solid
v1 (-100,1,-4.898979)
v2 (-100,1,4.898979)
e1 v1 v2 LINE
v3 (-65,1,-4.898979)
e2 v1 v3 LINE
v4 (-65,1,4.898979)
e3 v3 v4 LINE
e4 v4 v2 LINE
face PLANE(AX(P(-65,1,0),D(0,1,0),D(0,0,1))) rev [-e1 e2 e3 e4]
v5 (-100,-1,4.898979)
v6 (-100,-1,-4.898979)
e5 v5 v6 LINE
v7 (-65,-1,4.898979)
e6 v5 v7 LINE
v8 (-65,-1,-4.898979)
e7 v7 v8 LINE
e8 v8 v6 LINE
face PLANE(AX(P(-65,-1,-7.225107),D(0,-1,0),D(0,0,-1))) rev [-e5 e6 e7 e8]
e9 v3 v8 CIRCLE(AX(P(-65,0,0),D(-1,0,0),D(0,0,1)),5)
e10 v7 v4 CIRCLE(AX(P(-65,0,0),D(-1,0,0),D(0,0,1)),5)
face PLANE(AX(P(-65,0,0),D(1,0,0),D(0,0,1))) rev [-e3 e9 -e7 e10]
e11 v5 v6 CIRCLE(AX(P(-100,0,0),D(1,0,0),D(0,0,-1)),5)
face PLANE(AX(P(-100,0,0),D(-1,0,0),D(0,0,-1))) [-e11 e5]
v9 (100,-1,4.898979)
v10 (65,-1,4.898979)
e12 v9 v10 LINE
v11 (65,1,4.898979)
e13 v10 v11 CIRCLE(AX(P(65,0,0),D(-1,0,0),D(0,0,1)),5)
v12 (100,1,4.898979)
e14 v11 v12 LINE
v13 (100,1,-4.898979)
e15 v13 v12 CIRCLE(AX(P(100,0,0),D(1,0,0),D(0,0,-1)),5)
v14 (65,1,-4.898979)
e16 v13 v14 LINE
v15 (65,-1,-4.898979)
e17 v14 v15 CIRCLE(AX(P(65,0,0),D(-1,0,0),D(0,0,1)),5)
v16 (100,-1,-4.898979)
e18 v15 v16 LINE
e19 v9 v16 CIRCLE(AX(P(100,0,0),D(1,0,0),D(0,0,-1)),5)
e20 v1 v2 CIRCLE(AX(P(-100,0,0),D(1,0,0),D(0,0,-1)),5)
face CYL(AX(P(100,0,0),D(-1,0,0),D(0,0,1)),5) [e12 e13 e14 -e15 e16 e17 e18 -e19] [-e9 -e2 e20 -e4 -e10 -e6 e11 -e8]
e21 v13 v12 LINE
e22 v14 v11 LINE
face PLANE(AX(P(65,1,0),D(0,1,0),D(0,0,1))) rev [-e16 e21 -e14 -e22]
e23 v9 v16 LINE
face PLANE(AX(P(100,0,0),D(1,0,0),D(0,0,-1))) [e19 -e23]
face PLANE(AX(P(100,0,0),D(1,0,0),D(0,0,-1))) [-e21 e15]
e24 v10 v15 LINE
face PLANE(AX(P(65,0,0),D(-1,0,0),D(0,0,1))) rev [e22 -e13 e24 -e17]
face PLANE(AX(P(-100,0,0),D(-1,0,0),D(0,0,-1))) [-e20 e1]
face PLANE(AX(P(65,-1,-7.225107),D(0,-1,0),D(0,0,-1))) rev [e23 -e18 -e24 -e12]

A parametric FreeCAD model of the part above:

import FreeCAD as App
import Part
import Sketcher

doc = App.newDocument("Part")
body = doc.addObject("PartDesign::Body", "Body")

# Sketch on YZ plane
sketch1 = doc.addObject("Sketcher::SketchObject", "Sketch")
body.addObject(sketch1)
sketch1.AttachmentSupport = (doc.YZ_Plane, [""])
sketch1.MapMode = "FlatFace"
sketch1.addGeometry(Part.Circle(App.Vector(0, 0, 0), App.Vector(0, 0, 1), 5), False)
sketch1.addConstraint([
    Sketcher.Constraint("Coincident", 0, 3, -1, 1),
    Sketcher.Constraint("Diameter", 0, 10.0),
])
pad1 = doc.addObject("PartDesign::Pad", "Pad")
body.addObject(pad1)
pad1.Profile = sketch1
pad1.Length = 100

# Sketch on YZ plane
sketch2 = doc.addObject("Sketcher::SketchObject", "Sketch001")
body.addObject(sketch2)
sketch2.AttachmentSupport = (doc.YZ_Plane, [""])
sketch2.MapMode = "FlatFace"
sketch2.AttachmentOffset = App.Placement(App.Vector(0, 0, 100), App.Rotation())
sketch2.addGeometry([
    Part.LineSegment(App.Vector(1, -7.2, 0), App.Vector(1, 6.5, 0)),
    Part.LineSegment(App.Vector(1, 6.5, 0), App.Vector(-1, 6.5, 0)),
    Part.LineSegment(App.Vector(-1, 6.5, 0), App.Vector(-1, -7.2, 0)),
    Part.LineSegment(App.Vector(-1, -7.2, 0), App.Vector(1, -7.2, 0)),
], False)
sketch2.addConstraint([
    Sketcher.Constraint("Coincident", 0, 2, 1, 1),
    Sketcher.Constraint("Coincident", 1, 2, 2, 1),
    Sketcher.Constraint("Coincident", 2, 2, 3, 1),
    Sketcher.Constraint("Coincident", 3, 2, 0, 1),
    Sketcher.Constraint("Vertical", 0),
    Sketcher.Constraint("Horizontal", 1),
    Sketcher.Constraint("Vertical", 2),
    Sketcher.Constraint("Horizontal", 3),
    Sketcher.Constraint("DistanceX", 1, 2, 1, 1, 2.0),
    Sketcher.Constraint("DistanceX", -1, 1, 0, 2, 1.0),
    Sketcher.Constraint("DistanceY", 0, 1, 0, 2, 13.680786),
    Sketcher.Constraint("DistanceY", -1, 1, 0, 2, 6.45568),
])
pocket1 = doc.addObject("PartDesign::Pocket", "Pocket")
body.addObject(pocket1)
pocket1.Profile = sketch2
pocket1.Length = 35
body2 = doc.addObject("PartDesign::Body", "Body001")
doc.recompute()

body2.BaseFeature = body
doc.recompute()

mirroring = doc.addObject("Part::Mirroring", "Mirroring")
mirroring.Source = body
mirroring.Base = App.Vector(0, 0, 0)
mirroring.Normal = App.Vector(1, 0, 0)
body3 = doc.addObject("PartDesign::Body", "Body002")
body3.BaseFeature = mirroring
boolean = doc.addObject("PartDesign::Boolean", "Boolean")
body2.addObject(boolean)
boolean.Type = "Fuse"
boolean.addObjects([body3])
doc.recompute()
mirroring.Visibility = False

doc.recompute()
